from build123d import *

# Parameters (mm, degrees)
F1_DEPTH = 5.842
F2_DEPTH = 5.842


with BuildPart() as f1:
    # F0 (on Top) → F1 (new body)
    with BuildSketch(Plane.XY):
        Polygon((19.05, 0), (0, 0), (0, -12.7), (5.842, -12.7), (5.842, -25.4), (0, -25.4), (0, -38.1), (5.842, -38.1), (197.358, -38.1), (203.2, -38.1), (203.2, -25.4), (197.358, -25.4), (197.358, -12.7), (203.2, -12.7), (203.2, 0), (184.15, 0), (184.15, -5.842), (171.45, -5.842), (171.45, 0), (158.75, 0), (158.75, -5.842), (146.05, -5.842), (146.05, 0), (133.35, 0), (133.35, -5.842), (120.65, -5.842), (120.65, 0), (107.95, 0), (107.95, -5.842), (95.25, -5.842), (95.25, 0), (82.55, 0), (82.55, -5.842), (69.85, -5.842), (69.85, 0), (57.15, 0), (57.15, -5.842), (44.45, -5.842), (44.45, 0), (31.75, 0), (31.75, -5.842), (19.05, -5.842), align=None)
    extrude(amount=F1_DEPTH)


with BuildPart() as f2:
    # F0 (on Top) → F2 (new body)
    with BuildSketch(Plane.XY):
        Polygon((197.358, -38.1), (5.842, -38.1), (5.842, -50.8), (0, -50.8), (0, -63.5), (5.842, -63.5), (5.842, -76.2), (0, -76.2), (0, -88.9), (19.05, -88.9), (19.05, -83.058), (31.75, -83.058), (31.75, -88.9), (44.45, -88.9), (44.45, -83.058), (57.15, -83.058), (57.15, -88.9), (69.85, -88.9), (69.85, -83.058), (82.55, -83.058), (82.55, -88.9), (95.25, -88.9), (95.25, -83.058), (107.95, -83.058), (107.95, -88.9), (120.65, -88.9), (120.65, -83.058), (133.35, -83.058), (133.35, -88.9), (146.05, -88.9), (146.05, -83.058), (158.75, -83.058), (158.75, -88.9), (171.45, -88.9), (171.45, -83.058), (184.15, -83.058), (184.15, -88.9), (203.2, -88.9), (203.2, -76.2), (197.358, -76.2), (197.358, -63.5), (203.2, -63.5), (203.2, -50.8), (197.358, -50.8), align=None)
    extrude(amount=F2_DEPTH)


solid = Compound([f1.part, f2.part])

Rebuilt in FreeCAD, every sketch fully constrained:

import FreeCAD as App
import Part
import Sketcher

V = App.Vector
Q = App.Units.Quantity

doc = App.newDocument("Part")
body = doc.addObject("PartDesign::Body", "Body")

# Sketch on XY plane
sketch1 = body.newObject("Sketcher::SketchObject", "Sketch")
sketch1.AttachmentSupport = (doc.getObject("XY_Plane"), [""])
sketch1.MapMode = "FlatFace"
sketch1.addGeometry(Part.LineSegment(V(19.05, 0, 0), V(0, 0, 0)), False)
sketch1.addGeometry(Part.LineSegment(V(0, 0, 0), V(0, -12.7, 0)), False)
sketch1.addGeometry(Part.LineSegment(V(0, -12.7, 0), V(5.842, -12.7, 0)), False)
sketch1.addGeometry(Part.LineSegment(V(5.842, -12.7, 0), V(5.842, -25.4, 0)), False)
sketch1.addGeometry(Part.LineSegment(V(5.842, -25.4, 0), V(0, -25.4, 0)), False)
sketch1.addGeometry(Part.LineSegment(V(0, -25.4, 0), V(0, -38.1, 0)), False)
sketch1.addGeometry(Part.LineSegment(V(0, -38.1, 0), V(203.2, -38.1, 0)), False)
sketch1.addGeometry(Part.LineSegment(V(203.2, -38.1, 0), V(203.2, -25.4, 0)), False)
sketch1.addGeometry(Part.LineSegment(V(203.2, -25.4, 0), V(197.358, -25.4, 0)), False)
sketch1.addGeometry(Part.LineSegment(V(197.358, -25.4, 0), V(197.358, -12.7, 0)), False)
sketch1.addGeometry(Part.LineSegment(V(197.358, -12.7, 0), V(203.2, -12.7, 0)), False)
sketch1.addGeometry(Part.LineSegment(V(203.2, -12.7, 0), V(203.2, 0, 0)), False)
sketch1.addGeometry(Part.LineSegment(V(203.2, 0, 0), V(184.15, 0, 0)), False)
sketch1.addGeometry(Part.LineSegment(V(184.15, 0, 0), V(184.15, -5.842, 0)), False)
sketch1.addGeometry(Part.LineSegment(V(184.15, -5.842, 0), V(171.45, -5.842, 0)), False)
sketch1.addGeometry(Part.LineSegment(V(171.45, -5.842, 0), V(171.45, 0, 0)), False)
sketch1.addGeometry(Part.LineSegment(V(171.45, 0, 0), V(158.75, 0, 0)), False)
sketch1.addGeometry(Part.LineSegment(V(158.75, 0, 0), V(158.75, -5.842, 0)), False)
sketch1.addGeometry(Part.LineSegment(V(158.75, -5.842, 0), V(146.05, -5.842, 0)), False)
sketch1.addGeometry(Part.LineSegment(V(146.05, -5.842, 0), V(146.05, 0, 0)), False)
sketch1.addGeometry(Part.LineSegment(V(146.05, 0, 0), V(133.35, 0, 0)), False)
sketch1.addGeometry(Part.LineSegment(V(133.35, 0, 0), V(133.35, -5.842, 0)), False)
sketch1.addGeometry(Part.LineSegment(V(133.35, -5.842, 0), V(120.65, -5.842, 0)), False)
sketch1.addGeometry(Part.LineSegment(V(120.65, -5.842, 0), V(120.65, 0, 0)), False)
sketch1.addGeometry(Part.LineSegment(V(120.65, 0, 0), V(107.95, 0, 0)), False)
sketch1.addGeometry(Part.LineSegment(V(107.95, 0, 0), V(107.95, -5.842, 0)), False)
sketch1.addGeometry(Part.LineSegment(V(107.95, -5.842, 0), V(95.25, -5.842, 0)), False)
sketch1.addGeometry(Part.LineSegment(V(95.25, -5.842, 0), V(95.25, 0, 0)), False)
sketch1.addGeometry(Part.LineSegment(V(95.25, 0, 0), V(82.55, 0, 0)), False)
sketch1.addGeometry(Part.LineSegment(V(82.55, 0, 0), V(82.55, -5.842, 0)), False)
sketch1.addGeometry(Part.LineSegment(V(82.55, -5.842, 0), V(69.85, -5.842, 0)), False)
sketch1.addGeometry(Part.LineSegment(V(69.85, -5.842, 0), V(69.85, 0, 0)), False)
sketch1.addGeometry(Part.LineSegment(V(69.85, 0, 0), V(57.15, 0, 0)), False)
sketch1.addGeometry(Part.LineSegment(V(57.15, 0, 0), V(57.15, -5.842, 0)), False)
sketch1.addGeometry(Part.LineSegment(V(57.15, -5.842, 0), V(44.45, -5.842, 0)), False)
sketch1.addGeometry(Part.LineSegment(V(44.45, -5.842, 0), V(44.45, 0, 0)), False)
sketch1.addGeometry(Part.LineSegment(V(44.45, 0, 0), V(31.75, 0, 0)), False)
sketch1.addGeometry(Part.LineSegment(V(31.75, 0, 0), V(31.75, -5.842, 0)), False)
sketch1.addGeometry(Part.LineSegment(V(31.75, -5.842, 0), V(19.05, -5.842, 0)), False)
sketch1.addGeometry(Part.LineSegment(V(19.05, -5.842, 0), V(19.05, 0, 0)), False)
sketch1.addConstraint(Sketcher.Constraint("Coincident", 0, 2, 1, 1))
sketch1.addConstraint(Sketcher.Constraint("Coincident", 1, 2, 2, 1))
sketch1.addConstraint(Sketcher.Constraint("Coincident", 2, 2, 3, 1))
sketch1.addConstraint(Sketcher.Constraint("Coincident", 3, 2, 4, 1))
sketch1.addConstraint(Sketcher.Constraint("Coincident", 4, 2, 5, 1))
sketch1.addConstraint(Sketcher.Constraint("Coincident", 5, 2, 6, 1))
sketch1.addConstraint(Sketcher.Constraint("Coincident", 6, 2, 7, 1))
sketch1.addConstraint(Sketcher.Constraint("Coincident", 7, 2, 8, 1))
sketch1.addConstraint(Sketcher.Constraint("Coincident", 8, 2, 9, 1))
sketch1.addConstraint(Sketcher.Constraint("Coincident", 9, 2, 10, 1))
sketch1.addConstraint(Sketcher.Constraint("Coincident", 10, 2, 11, 1))
sketch1.addConstraint(Sketcher.Constraint("Coincident", 11, 2, 12, 1))
sketch1.addConstraint(Sketcher.Constraint("Coincident", 12, 2, 13, 1))
sketch1.addConstraint(Sketcher.Constraint("Coincident", 13, 2, 14, 1))
sketch1.addConstraint(Sketcher.Constraint("Coincident", 14, 2, 15, 1))
sketch1.addConstraint(Sketcher.Constraint("Coincident", 15, 2, 16, 1))
sketch1.addConstraint(Sketcher.Constraint("Coincident", 16, 2, 17, 1))
sketch1.addConstraint(Sketcher.Constraint("Coincident", 17, 2, 18, 1))
sketch1.addConstraint(Sketcher.Constraint("Coincident", 18, 2, 19, 1))
sketch1.addConstraint(Sketcher.Constraint("Coincident", 19, 2, 20, 1))
sketch1.addConstraint(Sketcher.Constraint("Coincident", 20, 2, 21, 1))
sketch1.addConstraint(Sketcher.Constraint("Coincident", 21, 2, 22, 1))
sketch1.addConstraint(Sketcher.Constraint("Coincident", 22, 2, 23, 1))
sketch1.addConstraint(Sketcher.Constraint("Coincident", 23, 2, 24, 1))
sketch1.addConstraint(Sketcher.Constraint("Coincident", 24, 2, 25, 1))
sketch1.addConstraint(Sketcher.Constraint("Coincident", 25, 2, 26, 1))
sketch1.addConstraint(Sketcher.Constraint("Coincident", 26, 2, 27, 1))
sketch1.addConstraint(Sketcher.Constraint("Coincident", 27, 2, 28, 1))
sketch1.addConstraint(Sketcher.Constraint("Coincident", 28, 2, 29, 1))
sketch1.addConstraint(Sketcher.Constraint("Coincident", 29, 2, 30, 1))
sketch1.addConstraint(Sketcher.Constraint("Coincident", 30, 2, 31, 1))
sketch1.addConstraint(Sketcher.Constraint("Coincident", 31, 2, 32, 1))
sketch1.addConstraint(Sketcher.Constraint("Coincident", 32, 2, 33, 1))
sketch1.addConstraint(Sketcher.Constraint("Coincident", 33, 2, 34, 1))
sketch1.addConstraint(Sketcher.Constraint("Coincident", 34, 2, 35, 1))
sketch1.addConstraint(Sketcher.Constraint("Coincident", 35, 2, 36, 1))
sketch1.addConstraint(Sketcher.Constraint("Coincident", 36, 2, 37, 1))
sketch1.addConstraint(Sketcher.Constraint("Coincident", 37, 2, 38, 1))
sketch1.addConstraint(Sketcher.Constraint("Coincident", 38, 2, 39, 1))
sketch1.addConstraint(Sketcher.Constraint("Coincident", 39, 2, 0, 1))
sketch1.addConstraint(Sketcher.Constraint("Horizontal", 0))
sketch1.addConstraint(Sketcher.Constraint("Vertical", 1))
sketch1.addConstraint(Sketcher.Constraint("Horizontal", 2))
sketch1.addConstraint(Sketcher.Constraint("Vertical", 3))
sketch1.addConstraint(Sketcher.Constraint("Horizontal", 4))
sketch1.addConstraint(Sketcher.Constraint("Vertical", 5))
sketch1.addConstraint(Sketcher.Constraint("Horizontal", 6))
sketch1.addConstraint(Sketcher.Constraint("Vertical", 7))
sketch1.addConstraint(Sketcher.Constraint("Horizontal", 8))
sketch1.addConstraint(Sketcher.Constraint("Vertical", 9))
sketch1.addConstraint(Sketcher.Constraint("Horizontal", 10))
sketch1.addConstraint(Sketcher.Constraint("Vertical", 11))
sketch1.addConstraint(Sketcher.Constraint("Horizontal", 12))
sketch1.addConstraint(Sketcher.Constraint("Vertical", 13))
sketch1.addConstraint(Sketcher.Constraint("Horizontal", 14))
sketch1.addConstraint(Sketcher.Constraint("Vertical", 15))
sketch1.addConstraint(Sketcher.Constraint("Horizontal", 16))
sketch1.addConstraint(Sketcher.Constraint("Vertical", 17))
sketch1.addConstraint(Sketcher.Constraint("Horizontal", 18))
sketch1.addConstraint(Sketcher.Constraint("Vertical", 19))
sketch1.addConstraint(Sketcher.Constraint("Horizontal", 20))
sketch1.addConstraint(Sketcher.Constraint("Vertical", 21))
sketch1.addConstraint(Sketcher.Constraint("Horizontal", 22))
sketch1.addConstraint(Sketcher.Constraint("Vertical", 23))
sketch1.addConstraint(Sketcher.Constraint("Horizontal", 24))
sketch1.addConstraint(Sketcher.Constraint("Vertical", 25))
sketch1.addConstraint(Sketcher.Constraint("Horizontal", 26))
sketch1.addConstraint(Sketcher.Constraint("Vertical", 27))
sketch1.addConstraint(Sketcher.Constraint("Horizontal", 28))
sketch1.addConstraint(Sketcher.Constraint("Vertical", 29))
sketch1.addConstraint(Sketcher.Constraint("Horizontal", 30))
sketch1.addConstraint(Sketcher.Constraint("Vertical", 31))
sketch1.addConstraint(Sketcher.Constraint("Horizontal", 32))
sketch1.addConstraint(Sketcher.Constraint("Vertical", 33))
sketch1.addConstraint(Sketcher.Constraint("Horizontal", 34))
sketch1.addConstraint(Sketcher.Constraint("Vertical", 35))
sketch1.addConstraint(Sketcher.Constraint("Horizontal", 36))
sketch1.addConstraint(Sketcher.Constraint("Vertical", 37))
sketch1.addConstraint(Sketcher.Constraint("Horizontal", 38))
sketch1.addConstraint(Sketcher.Constraint("Vertical", 39))
sketch1.addConstraint(Sketcher.Constraint("Coincident", 0, 2, -1, 1))
sketch1.addConstraint(Sketcher.Constraint("PointOnObject", 4, 2, -2))
sketch1.addConstraint(Sketcher.Constraint("PointOnObject", 11, 2, -1))
sketch1.addConstraint(Sketcher.Constraint("PointOnObject", 15, 2, -1))
sketch1.addConstraint(Sketcher.Constraint("PointOnObject", 19, 2, -1))
sketch1.addConstraint(Sketcher.Constraint("PointOnObject", 23, 2, -1))
sketch1.addConstraint(Sketcher.Constraint("PointOnObject", 27, 2, -1))
sketch1.addConstraint(Sketcher.Constraint("PointOnObject", 31, 2, -1))
sketch1.addConstraint(Sketcher.Constraint("PointOnObject", 35, 2, -1))
sketch1.addConstraint(Sketcher.Constraint("Horizontal", 4, 2, 7, 2))
sketch1.addConstraint(Sketcher.Constraint("Horizontal", 2, 2, 9, 2))
sketch1.addConstraint(Sketcher.Constraint("Horizontal", 14, 2, 17, 2))
sketch1.addConstraint(Sketcher.Constraint("Horizontal", 18, 2, 21, 2))
sketch1.addConstraint(Sketcher.Constraint("Horizontal", 22, 2, 25, 2))
sketch1.addConstraint(Sketcher.Constraint("Horizontal", 26, 2, 29, 2))
sketch1.addConstraint(Sketcher.Constraint("Horizontal", 30, 2, 33, 2))
sketch1.addConstraint(Sketcher.Constraint("Horizontal", 34, 2, 37, 2))
sketch1.addConstraint(Sketcher.Constraint("Vertical", 7, 2, 10, 2))
sketch1.addConstraint(Sketcher.Constraint("Equal", 4, 8))
sketch1.addConstraint(Sketcher.Constraint("Equal", 0, 12))
sketch1.addConstraint(Sketcher.Constraint("Equal", 14, 16))
sketch1.addConstraint(Sketcher.Constraint("Equal", 16, 18))
sketch1.addConstraint(Sketcher.Constraint("Equal", 18, 20))
sketch1.addConstraint(Sketcher.Constraint("Equal", 20, 22))
sketch1.addConstraint(Sketcher.Constraint("Equal", 22, 24))
sketch1.addConstraint(Sketcher.Constraint("Equal", 24, 26))
sketch1.addConstraint(Sketcher.Constraint("Equal", 26, 28))
sketch1.addConstraint(Sketcher.Constraint("Equal", 28, 30))
sketch1.addConstraint(Sketcher.Constraint("Equal", 30, 32))
sketch1.addConstraint(Sketcher.Constraint("Equal", 32, 34))
sketch1.addConstraint(Sketcher.Constraint("Equal", 34, 36))
sketch1.addConstraint(Sketcher.Constraint("Equal", 36, 38))
sketch1.addConstraint(Sketcher.Constraint("Equal", 38, 1))
sketch1.addConstraint(Sketcher.Constraint("Equal", 1, 3))
sketch1.addConstraint(Sketcher.Constraint("Equal", 3, 5))
sketch1.addConstraint(Sketcher.Constraint("Equal", 10, 13))
sketch1.addConstraint(Sketcher.Constraint("DistanceX", 6, 1, 6, 2, Q("8 in")))
sketch1.addConstraint(Sketcher.Constraint("DistanceX", 14, 2, 14, 1, Q("0.5 in")))
sketch1.addConstraint(Sketcher.Constraint("DistanceX", 2, 1, 2, 2, Q("0.23 in")))
pad1 = body.newObject("PartDesign::Pad", "Pad")
pad1.Profile = sketch1
pad1.Length = Q("0.23 in")
body2 = doc.addObject("PartDesign::Body", "Body001")

# Sketch on XY plane
sketch2 = body2.newObject("Sketcher::SketchObject", "Sketch001")
sketch2.AttachmentSupport = (doc.getObject("XY_Plane001"), [""])
sketch2.MapMode = "FlatFace"
sketch2.addGeometry(Part.LineSegment(V(197.358, -38.1, 0), V(5.842, -38.1, 0)), False)
sketch2.addGeometry(Part.LineSegment(V(5.842, -38.1, 0), V(5.842, -50.8, 0)), False)
sketch2.addGeometry(Part.LineSegment(V(5.842, -50.8, 0), V(0, -50.8, 0)), False)
sketch2.addGeometry(Part.LineSegment(V(0, -50.8, 0), V(0, -63.5, 0)), False)
sketch2.addGeometry(Part.LineSegment(V(0, -63.5, 0), V(5.842, -63.5, 0)), False)
sketch2.addGeometry(Part.LineSegment(V(5.842, -63.5, 0), V(5.842, -76.2, 0)), False)
sketch2.addGeometry(Part.LineSegment(V(5.842, -76.2, 0), V(0, -76.2, 0)), False)
sketch2.addGeometry(Part.LineSegment(V(0, -76.2, 0), V(0, -88.9, 0)), False)
sketch2.addGeometry(Part.LineSegment(V(0, -88.9, 0), V(19.05, -88.9, 0)), False)
sketch2.addGeometry(Part.LineSegment(V(19.05, -88.9, 0), V(19.05, -83.058, 0)), False)
sketch2.addGeometry(Part.LineSegment(V(19.05, -83.058, 0), V(31.75, -83.058, 0)), False)
sketch2.addGeometry(Part.LineSegment(V(31.75, -83.058, 0), V(31.75, -88.9, 0)), False)
sketch2.addGeometry(Part.LineSegment(V(31.75, -88.9, 0), V(44.45, -88.9, 0)), False)
sketch2.addGeometry(Part.LineSegment(V(44.45, -88.9, 0), V(44.45, -83.058, 0)), False)
sketch2.addGeometry(Part.LineSegment(V(44.45, -83.058, 0), V(57.15, -83.058, 0)), False)
sketch2.addGeometry(Part.LineSegment(V(57.15, -83.058, 0), V(57.15, -88.9, 0)), False)
sketch2.addGeometry(Part.LineSegment(V(57.15, -88.9, 0), V(69.85, -88.9, 0)), False)
sketch2.addGeometry(Part.LineSegment(V(69.85, -88.9, 0), V(69.85, -83.058, 0)), False)
sketch2.addGeometry(Part.LineSegment(V(69.85, -83.058, 0), V(82.55, -83.058, 0)), False)
sketch2.addGeometry(Part.LineSegment(V(82.55, -83.058, 0), V(82.55, -88.9, 0)), False)
sketch2.addGeometry(Part.LineSegment(V(82.55, -88.9, 0), V(95.25, -88.9, 0)), False)
sketch2.addGeometry(Part.LineSegment(V(95.25, -88.9, 0), V(95.25, -83.058, 0)), False)
sketch2.addGeometry(Part.LineSegment(V(95.25, -83.058, 0), V(107.95, -83.058, 0)), False)
sketch2.addGeometry(Part.LineSegment(V(107.95, -83.058, 0), V(107.95, -88.9, 0)), False)
sketch2.addGeometry(Part.LineSegment(V(107.95, -88.9, 0), V(120.65, -88.9, 0)), False)
sketch2.addGeometry(Part.LineSegment(V(120.65, -88.9, 0), V(120.65, -83.058, 0)), False)
sketch2.addGeometry(Part.LineSegment(V(120.65, -83.058, 0), V(133.35, -83.058, 0)), False)
sketch2.addGeometry(Part.LineSegment(V(133.35, -83.058, 0), V(133.35, -88.9, 0)), False)
sketch2.addGeometry(Part.LineSegment(V(133.35, -88.9, 0), V(146.05, -88.9, 0)), False)
sketch2.addGeometry(Part.LineSegment(V(146.05, -88.9, 0), V(146.05, -83.058, 0)), False)
sketch2.addGeometry(Part.LineSegment(V(146.05, -83.058, 0), V(158.75, -83.058, 0)), False)
sketch2.addGeometry(Part.LineSegment(V(158.75, -83.058, 0), V(158.75, -88.9, 0)), False)
sketch2.addGeometry(Part.LineSegment(V(158.75, -88.9, 0), V(171.45, -88.9, 0)), False)
sketch2.addGeometry(Part.LineSegment(V(171.45, -88.9, 0), V(171.45, -83.058, 0)), False)
sketch2.addGeometry(Part.LineSegment(V(171.45, -83.058, 0), V(184.15, -83.058, 0)), False)
sketch2.addGeometry(Part.LineSegment(V(184.15, -83.058, 0), V(184.15, -88.9, 0)), False)
sketch2.addGeometry(Part.LineSegment(V(184.15, -88.9, 0), V(203.2, -88.9, 0)), False)
sketch2.addGeometry(Part.LineSegment(V(203.2, -88.9, 0), V(203.2, -76.2, 0)), False)
sketch2.addGeometry(Part.LineSegment(V(203.2, -76.2, 0), V(197.358, -76.2, 0)), False)
sketch2.addGeometry(Part.LineSegment(V(197.358, -76.2, 0), V(197.358, -63.5, 0)), False)
sketch2.addGeometry(Part.LineSegment(V(197.358, -63.5, 0), V(203.2, -63.5, 0)), False)
sketch2.addGeometry(Part.LineSegment(V(203.2, -63.5, 0), V(203.2, -50.8, 0)), False)
sketch2.addGeometry(Part.LineSegment(V(203.2, -50.8, 0), V(197.358, -50.8, 0)), False)
sketch2.addGeometry(Part.LineSegment(V(197.358, -50.8, 0), V(197.358, -38.1, 0)), False)
sketch2.addConstraint(Sketcher.Constraint("Coincident", 0, 2, 1, 1))
sketch2.addConstraint(Sketcher.Constraint("Coincident", 1, 2, 2, 1))
sketch2.addConstraint(Sketcher.Constraint("Coincident", 2, 2, 3, 1))
sketch2.addConstraint(Sketcher.Constraint("Coincident", 3, 2, 4, 1))
sketch2.addConstraint(Sketcher.Constraint("Coincident", 4, 2, 5, 1))
sketch2.addConstraint(Sketcher.Constraint("Coincident", 5, 2, 6, 1))
sketch2.addConstraint(Sketcher.Constraint("Coincident", 6, 2, 7, 1))
sketch2.addConstraint(Sketcher.Constraint("Coincident", 7, 2, 8, 1))
sketch2.addConstraint(Sketcher.Constraint("Coincident", 8, 2, 9, 1))
sketch2.addConstraint(Sketcher.Constraint("Coincident", 9, 2, 10, 1))
sketch2.addConstraint(Sketcher.Constraint("Coincident", 10, 2, 11, 1))
sketch2.addConstraint(Sketcher.Constraint("Coincident", 11, 2, 12, 1))
sketch2.addConstraint(Sketcher.Constraint("Coincident", 12, 2, 13, 1))
sketch2.addConstraint(Sketcher.Constraint("Coincident", 13, 2, 14, 1))
sketch2.addConstraint(Sketcher.Constraint("Coincident", 14, 2, 15, 1))
sketch2.addConstraint(Sketcher.Constraint("Coincident", 15, 2, 16, 1))
sketch2.addConstraint(Sketcher.Constraint("Coincident", 16, 2, 17, 1))
sketch2.addConstraint(Sketcher.Constraint("Coincident", 17, 2, 18, 1))
sketch2.addConstraint(Sketcher.Constraint("Coincident", 18, 2, 19, 1))
sketch2.addConstraint(Sketcher.Constraint("Coincident", 19, 2, 20, 1))
sketch2.addConstraint(Sketcher.Constraint("Coincident", 20, 2, 21, 1))
sketch2.addConstraint(Sketcher.Constraint("Coincident", 21, 2, 22, 1))
sketch2.addConstraint(Sketcher.Constraint("Coincident", 22, 2, 23, 1))
sketch2.addConstraint(Sketcher.Constraint("Coincident", 23, 2, 24, 1))
sketch2.addConstraint(Sketcher.Constraint("Coincident", 24, 2, 25, 1))
sketch2.addConstraint(Sketcher.Constraint("Coincident", 25, 2, 26, 1))
sketch2.addConstraint(Sketcher.Constraint("Coincident", 26, 2, 27, 1))
sketch2.addConstraint(Sketcher.Constraint("Coincident", 27, 2, 28, 1))
sketch2.addConstraint(Sketcher.Constraint("Coincident", 28, 2, 29, 1))
sketch2.addConstraint(Sketcher.Constraint("Coincident", 29, 2, 30, 1))
sketch2.addConstraint(Sketcher.Constraint("Coincident", 30, 2, 31, 1))
sketch2.addConstraint(Sketcher.Constraint("Coincident", 31, 2, 32, 1))
sketch2.addConstraint(Sketcher.Constraint("Coincident", 32, 2, 33, 1))
sketch2.addConstraint(Sketcher.Constraint("Coincident", 33, 2, 34, 1))
sketch2.addConstraint(Sketcher.Constraint("Coincident", 34, 2, 35, 1))
sketch2.addConstraint(Sketcher.Constraint("Coincident", 35, 2, 36, 1))
sketch2.addConstraint(Sketcher.Constraint("Coincident", 36, 2, 37, 1))
sketch2.addConstraint(Sketcher.Constraint("Coincident", 37, 2, 38, 1))
sketch2.addConstraint(Sketcher.Constraint("Coincident", 38, 2, 39, 1))
sketch2.addConstraint(Sketcher.Constraint("Coincident", 39, 2, 40, 1))
sketch2.addConstraint(Sketcher.Constraint("Coincident", 40, 2, 41, 1))
sketch2.addConstraint(Sketcher.Constraint("Coincident", 41, 2, 42, 1))
sketch2.addConstraint(Sketcher.Constraint("Coincident", 42, 2, 43, 1))
sketch2.addConstraint(Sketcher.Constraint("Coincident", 43, 2, 0, 1))
sketch2.addConstraint(Sketcher.Constraint("Horizontal", 0))
sketch2.addConstraint(Sketcher.Constraint("Vertical", 1))
sketch2.addConstraint(Sketcher.Constraint("Horizontal", 2))
sketch2.addConstraint(Sketcher.Constraint("Vertical", 3))
sketch2.addConstraint(Sketcher.Constraint("Horizontal", 4))
sketch2.addConstraint(Sketcher.Constraint("Vertical", 5))
sketch2.addConstraint(Sketcher.Constraint("Horizontal", 6))
sketch2.addConstraint(Sketcher.Constraint("Vertical", 7))
sketch2.addConstraint(Sketcher.Constraint("Horizontal", 8))
sketch2.addConstraint(Sketcher.Constraint("Vertical", 9))
sketch2.addConstraint(Sketcher.Constraint("Horizontal", 10))
sketch2.addConstraint(Sketcher.Constraint("Vertical", 11))
sketch2.addConstraint(Sketcher.Constraint("Horizontal", 12))
sketch2.addConstraint(Sketcher.Constraint("Vertical", 13))
sketch2.addConstraint(Sketcher.Constraint("Horizontal", 14))
sketch2.addConstraint(Sketcher.Constraint("Vertical", 15))
sketch2.addConstraint(Sketcher.Constraint("Horizontal", 16))
sketch2.addConstraint(Sketcher.Constraint("Vertical", 17))
sketch2.addConstraint(Sketcher.Constraint("Horizontal", 18))
sketch2.addConstraint(Sketcher.Constraint("Vertical", 19))
sketch2.addConstraint(Sketcher.Constraint("Horizontal", 20))
sketch2.addConstraint(Sketcher.Constraint("Vertical", 21))
sketch2.addConstraint(Sketcher.Constraint("Horizontal", 22))
sketch2.addConstraint(Sketcher.Constraint("Vertical", 23))
sketch2.addConstraint(Sketcher.Constraint("Horizontal", 24))
sketch2.addConstraint(Sketcher.Constraint("Vertical", 25))
sketch2.addConstraint(Sketcher.Constraint("Horizontal", 26))
sketch2.addConstraint(Sketcher.Constraint("Vertical", 27))
sketch2.addConstraint(Sketcher.Constraint("Horizontal", 28))
sketch2.addConstraint(Sketcher.Constraint("Vertical", 29))
sketch2.addConstraint(Sketcher.Constraint("Horizontal", 30))
sketch2.addConstraint(Sketcher.Constraint("Vertical", 31))
sketch2.addConstraint(Sketcher.Constraint("Horizontal", 32))
sketch2.addConstraint(Sketcher.Constraint("Vertical", 33))
sketch2.addConstraint(Sketcher.Constraint("Horizontal", 34))
sketch2.addConstraint(Sketcher.Constraint("Vertical", 35))
sketch2.addConstraint(Sketcher.Constraint("Horizontal", 36))
sketch2.addConstraint(Sketcher.Constraint("Vertical", 37))
sketch2.addConstraint(Sketcher.Constraint("Horizontal", 38))
sketch2.addConstraint(Sketcher.Constraint("Vertical", 39))
sketch2.addConstraint(Sketcher.Constraint("Horizontal", 40))
sketch2.addConstraint(Sketcher.Constraint("Vertical", 41))
sketch2.addConstraint(Sketcher.Constraint("Horizontal", 42))
sketch2.addConstraint(Sketcher.Constraint("Vertical", 43))
sketch2.addConstraint(Sketcher.Constraint("PointOnObject", 2, 2, -2))
sketch2.addConstraint(Sketcher.Constraint("PointOnObject", 6, 2, -2))
sketch2.addConstraint(Sketcher.Constraint("Horizontal", 8, 2, 11, 2))
sketch2.addConstraint(Sketcher.Constraint("Horizontal", 10, 2, 13, 2))
sketch2.addConstraint(Sketcher.Constraint("Horizontal", 12, 2, 15, 2))
sketch2.addConstraint(Sketcher.Constraint("Horizontal", 14, 2, 17, 2))
sketch2.addConstraint(Sketcher.Constraint("Horizontal", 16, 2, 19, 2))
sketch2.addConstraint(Sketcher.Constraint("Horizontal", 18, 2, 21, 2))
sketch2.addConstraint(Sketcher.Constraint("Horizontal", 20, 2, 23, 2))
sketch2.addConstraint(Sketcher.Constraint("Horizontal", 22, 2, 25, 2))
sketch2.addConstraint(Sketcher.Constraint("Horizontal", 24, 2, 27, 2))
sketch2.addConstraint(Sketcher.Constraint("Horizontal", 26, 2, 29, 2))
sketch2.addConstraint(Sketcher.Constraint("Horizontal", 28, 2, 31, 2))
sketch2.addConstraint(Sketcher.Constraint("Horizontal", 30, 2, 33, 2))
sketch2.addConstraint(Sketcher.Constraint("Horizontal", 32, 2, 35, 2))
sketch2.addConstraint(Sketcher.Constraint("Horizontal", 6, 2, 37, 2))
sketch2.addConstraint(Sketcher.Constraint("Horizontal", 4, 2, 39, 2))
sketch2.addConstraint(Sketcher.Constraint("Horizontal", 2, 2, 41, 2))
sketch2.addConstraint(Sketcher.Constraint("Vertical", 1, 2, 4, 2))
sketch2.addConstraint(Sketcher.Constraint("Vertical", 37, 2, 40, 2))
sketch2.addConstraint(Sketcher.Constraint("Vertical", 39, 2, 42, 2))
sketch2.addConstraint(Sketcher.Constraint("Equal", 10, 12))
sketch2.addConstraint(Sketcher.Constraint("Equal", 12, 14))
sketch2.addConstraint(Sketcher.Constraint("Equal", 14, 16))
sketch2.addConstraint(Sketcher.Constraint("Equal", 16, 18))
sketch2.addConstraint(Sketcher.Constraint("Equal", 18, 20))
sketch2.addConstraint(Sketcher.Constraint("Equal", 20, 22))
sketch2.addConstraint(Sketcher.Constraint("Equal", 22, 24))
sketch2.addConstraint(Sketcher.Constraint("Equal", 24, 26))
sketch2.addConstraint(Sketcher.Constraint("Equal", 26, 28))
sketch2.addConstraint(Sketcher.Constraint("Equal", 28, 30))
sketch2.addConstraint(Sketcher.Constraint("Equal", 30, 32))
sketch2.addConstraint(Sketcher.Constraint("Equal", 32, 34))
sketch2.addConstraint(Sketcher.Constraint("Equal", 8, 36))
sketch2.addConstraint(Sketcher.Constraint("Equal", 6, 38))
sketch2.addConstraint(Sketcher.Constraint("Equal", 34, 1))
sketch2.addConstraint(Sketcher.Constraint("Equal", 1, 3))
sketch2.addConstraint(Sketcher.Constraint("Equal", 3, 5))
sketch2.addConstraint(Sketcher.Constraint("Equal", 5, 7))
sketch2.addConstraint(Sketcher.Constraint("Equal", 42, 9))
sketch2.addConstraint(Sketcher.Constraint("DistanceX", 10, 1, 10, 2, Q("0.5 in")))
sketch2.addConstraint(Sketcher.Constraint("DistanceY", 1, 2, -1, 1, Q("2 in")))
sketch2.addConstraint(Sketcher.Constraint("DistanceX", -1, 1, 36, 2, Q("8 in")))
sketch2.addConstraint(Sketcher.Constraint("DistanceX", 0, 2, 0, 1, Q("7.54 in")))
pad2 = body2.newObject("PartDesign::Pad", "Pad001")
pad2.Profile = sketch2
pad2.Length = Q("0.23 in")

doc.recompute()
